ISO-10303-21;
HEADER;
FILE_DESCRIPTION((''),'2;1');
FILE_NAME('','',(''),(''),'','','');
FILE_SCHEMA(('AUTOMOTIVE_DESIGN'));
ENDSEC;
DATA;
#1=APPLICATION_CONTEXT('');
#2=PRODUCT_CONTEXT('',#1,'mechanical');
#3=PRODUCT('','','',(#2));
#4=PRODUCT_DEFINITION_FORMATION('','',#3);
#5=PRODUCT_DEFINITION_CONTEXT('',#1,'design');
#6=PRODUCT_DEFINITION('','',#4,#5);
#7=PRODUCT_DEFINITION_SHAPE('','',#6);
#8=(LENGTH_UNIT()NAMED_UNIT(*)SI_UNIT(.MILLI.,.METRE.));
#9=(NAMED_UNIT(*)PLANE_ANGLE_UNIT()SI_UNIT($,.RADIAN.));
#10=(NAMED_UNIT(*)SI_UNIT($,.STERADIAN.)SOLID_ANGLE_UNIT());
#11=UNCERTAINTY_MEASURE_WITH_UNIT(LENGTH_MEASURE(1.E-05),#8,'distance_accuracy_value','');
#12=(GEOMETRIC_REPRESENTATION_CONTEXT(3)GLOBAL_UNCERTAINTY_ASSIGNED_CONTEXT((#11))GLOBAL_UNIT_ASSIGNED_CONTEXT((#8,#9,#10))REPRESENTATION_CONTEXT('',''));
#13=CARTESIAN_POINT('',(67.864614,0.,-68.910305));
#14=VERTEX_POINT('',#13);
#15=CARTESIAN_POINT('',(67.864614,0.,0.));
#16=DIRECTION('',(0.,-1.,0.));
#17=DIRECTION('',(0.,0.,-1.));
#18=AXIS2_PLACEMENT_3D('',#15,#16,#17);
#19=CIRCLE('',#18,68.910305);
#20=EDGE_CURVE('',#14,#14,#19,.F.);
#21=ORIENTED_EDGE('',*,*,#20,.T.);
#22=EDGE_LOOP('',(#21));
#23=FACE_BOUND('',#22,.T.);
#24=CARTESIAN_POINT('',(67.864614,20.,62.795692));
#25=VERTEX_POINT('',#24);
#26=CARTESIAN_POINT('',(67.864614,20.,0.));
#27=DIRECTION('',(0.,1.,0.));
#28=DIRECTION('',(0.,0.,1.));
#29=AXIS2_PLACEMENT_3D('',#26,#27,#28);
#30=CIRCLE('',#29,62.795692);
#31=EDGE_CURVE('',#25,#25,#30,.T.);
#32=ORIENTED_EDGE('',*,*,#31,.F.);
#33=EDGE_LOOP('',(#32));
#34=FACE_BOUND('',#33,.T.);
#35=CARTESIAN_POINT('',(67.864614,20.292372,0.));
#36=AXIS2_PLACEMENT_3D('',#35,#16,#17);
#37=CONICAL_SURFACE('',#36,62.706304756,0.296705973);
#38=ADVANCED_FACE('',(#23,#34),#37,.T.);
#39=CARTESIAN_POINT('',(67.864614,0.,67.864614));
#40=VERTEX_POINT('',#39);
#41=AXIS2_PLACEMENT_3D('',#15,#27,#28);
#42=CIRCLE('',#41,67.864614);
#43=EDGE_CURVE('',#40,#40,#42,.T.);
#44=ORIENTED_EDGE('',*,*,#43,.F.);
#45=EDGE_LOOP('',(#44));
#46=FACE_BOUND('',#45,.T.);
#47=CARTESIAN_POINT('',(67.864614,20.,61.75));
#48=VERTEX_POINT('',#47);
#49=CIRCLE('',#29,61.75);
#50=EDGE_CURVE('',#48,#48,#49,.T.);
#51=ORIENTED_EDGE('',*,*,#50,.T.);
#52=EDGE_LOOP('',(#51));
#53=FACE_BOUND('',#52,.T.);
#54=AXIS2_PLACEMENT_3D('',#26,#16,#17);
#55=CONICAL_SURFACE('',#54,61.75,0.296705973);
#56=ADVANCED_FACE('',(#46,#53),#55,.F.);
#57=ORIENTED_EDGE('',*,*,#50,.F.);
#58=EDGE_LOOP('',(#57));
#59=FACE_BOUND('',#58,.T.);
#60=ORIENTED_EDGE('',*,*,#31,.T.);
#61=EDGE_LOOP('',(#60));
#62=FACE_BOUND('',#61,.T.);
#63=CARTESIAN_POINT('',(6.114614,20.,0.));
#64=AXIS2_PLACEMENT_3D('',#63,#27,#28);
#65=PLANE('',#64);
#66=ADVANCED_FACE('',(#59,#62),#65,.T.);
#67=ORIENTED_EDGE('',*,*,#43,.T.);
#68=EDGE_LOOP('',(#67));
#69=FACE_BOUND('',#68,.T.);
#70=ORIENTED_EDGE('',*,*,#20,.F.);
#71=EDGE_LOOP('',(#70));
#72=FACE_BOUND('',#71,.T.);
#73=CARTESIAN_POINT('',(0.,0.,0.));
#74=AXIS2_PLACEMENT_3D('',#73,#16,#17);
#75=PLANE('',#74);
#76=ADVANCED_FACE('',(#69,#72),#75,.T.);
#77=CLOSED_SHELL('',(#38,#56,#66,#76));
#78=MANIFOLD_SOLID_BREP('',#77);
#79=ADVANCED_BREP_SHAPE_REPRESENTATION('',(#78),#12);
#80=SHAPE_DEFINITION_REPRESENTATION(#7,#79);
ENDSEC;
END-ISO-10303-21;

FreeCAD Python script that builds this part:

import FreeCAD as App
import Part
import Sketcher
Q = App.Units.Quantity


def faces_at(feature, points):
    """Names of the faces that lie closest to the given points."""
    faces = feature.Shape.Faces
    near = lambda p: min(range(len(faces)), key=lambda i: faces[i].distToShape(Part.Vertex(*p))[0])
    return sorted({f"Face{near(p) + 1}" for p in points})


def add_polygon(sketch, points):
    """Adds a closed chain of lines whose ends are joined by coincident constraints."""
    first, n = sketch.GeometryCount, len(points)
    for a, b in zip(points, points[1:] + points[:1]):
        sketch.addGeometry(Part.LineSegment(App.Vector(*a, 0), App.Vector(*b, 0)), False)
    for i in range(n):
        sketch.addConstraint(Sketcher.Constraint("Coincident", first + i, 2, first + (i + 1) % n, 1))

doc = App.newDocument("Part")
body = doc.addObject("PartDesign::Body", "Body")

# Sketch on XY plane
sketch1 = doc.addObject("Sketcher::SketchObject", "Sketch")
body.addObject(sketch1)
sketch1.AttachmentSupport = (doc.XY_Plane, [""])
sketch1.MapMode = "FlatFace"
add_polygon(sketch1, [(6.114614, 20), (0, 0), (67.864614, 0), (67.864614, 20)])  # lines 0-3
sketch1.addGeometry(Part.LineSegment(App.Vector(67.864614, 20, 0), App.Vector(67.864614, 0, 0)), True)  # axis
sketch1.addConstraint([
    Sketcher.Constraint("Horizontal", 1),
    Sketcher.Constraint("Vertical", 2),
    Sketcher.Constraint("Horizontal", 3),
    Sketcher.Constraint("Vertical", 4),
    Sketcher.Constraint("Coincident", 0, 2, -1, 1),
    Sketcher.Constraint("Coincident", 4, 1, 2, 2),
    Sketcher.Constraint("PointOnObject", 4, 2, -1),
    Sketcher.Constraint("DistanceY", 2, 1, 2, 2, 20.0),
    Sketcher.Constraint("Angle", 0, Q("-107 deg")),
    Sketcher.Constraint("DistanceX", 3, 2, 3, 1, 61.75),
])
revolution = doc.addObject("PartDesign::Revolution", "Revolution")
body.addObject(revolution)
revolution.Profile = sketch1
revolution.ReferenceAxis = (sketch1, ["Axis0"])
revolution.Angle = 360
doc.recompute()

thickness = doc.addObject("PartDesign::Thickness", "Thickness")
body.addObject(thickness)
thickness.Base = (revolution, faces_at(revolution, [(67.865, 20, 0), (67.865, 0, 0)]))
thickness.Value = 1
thickness.Reversed = False
thickness.Join = "Intersection"

doc.recompute()
